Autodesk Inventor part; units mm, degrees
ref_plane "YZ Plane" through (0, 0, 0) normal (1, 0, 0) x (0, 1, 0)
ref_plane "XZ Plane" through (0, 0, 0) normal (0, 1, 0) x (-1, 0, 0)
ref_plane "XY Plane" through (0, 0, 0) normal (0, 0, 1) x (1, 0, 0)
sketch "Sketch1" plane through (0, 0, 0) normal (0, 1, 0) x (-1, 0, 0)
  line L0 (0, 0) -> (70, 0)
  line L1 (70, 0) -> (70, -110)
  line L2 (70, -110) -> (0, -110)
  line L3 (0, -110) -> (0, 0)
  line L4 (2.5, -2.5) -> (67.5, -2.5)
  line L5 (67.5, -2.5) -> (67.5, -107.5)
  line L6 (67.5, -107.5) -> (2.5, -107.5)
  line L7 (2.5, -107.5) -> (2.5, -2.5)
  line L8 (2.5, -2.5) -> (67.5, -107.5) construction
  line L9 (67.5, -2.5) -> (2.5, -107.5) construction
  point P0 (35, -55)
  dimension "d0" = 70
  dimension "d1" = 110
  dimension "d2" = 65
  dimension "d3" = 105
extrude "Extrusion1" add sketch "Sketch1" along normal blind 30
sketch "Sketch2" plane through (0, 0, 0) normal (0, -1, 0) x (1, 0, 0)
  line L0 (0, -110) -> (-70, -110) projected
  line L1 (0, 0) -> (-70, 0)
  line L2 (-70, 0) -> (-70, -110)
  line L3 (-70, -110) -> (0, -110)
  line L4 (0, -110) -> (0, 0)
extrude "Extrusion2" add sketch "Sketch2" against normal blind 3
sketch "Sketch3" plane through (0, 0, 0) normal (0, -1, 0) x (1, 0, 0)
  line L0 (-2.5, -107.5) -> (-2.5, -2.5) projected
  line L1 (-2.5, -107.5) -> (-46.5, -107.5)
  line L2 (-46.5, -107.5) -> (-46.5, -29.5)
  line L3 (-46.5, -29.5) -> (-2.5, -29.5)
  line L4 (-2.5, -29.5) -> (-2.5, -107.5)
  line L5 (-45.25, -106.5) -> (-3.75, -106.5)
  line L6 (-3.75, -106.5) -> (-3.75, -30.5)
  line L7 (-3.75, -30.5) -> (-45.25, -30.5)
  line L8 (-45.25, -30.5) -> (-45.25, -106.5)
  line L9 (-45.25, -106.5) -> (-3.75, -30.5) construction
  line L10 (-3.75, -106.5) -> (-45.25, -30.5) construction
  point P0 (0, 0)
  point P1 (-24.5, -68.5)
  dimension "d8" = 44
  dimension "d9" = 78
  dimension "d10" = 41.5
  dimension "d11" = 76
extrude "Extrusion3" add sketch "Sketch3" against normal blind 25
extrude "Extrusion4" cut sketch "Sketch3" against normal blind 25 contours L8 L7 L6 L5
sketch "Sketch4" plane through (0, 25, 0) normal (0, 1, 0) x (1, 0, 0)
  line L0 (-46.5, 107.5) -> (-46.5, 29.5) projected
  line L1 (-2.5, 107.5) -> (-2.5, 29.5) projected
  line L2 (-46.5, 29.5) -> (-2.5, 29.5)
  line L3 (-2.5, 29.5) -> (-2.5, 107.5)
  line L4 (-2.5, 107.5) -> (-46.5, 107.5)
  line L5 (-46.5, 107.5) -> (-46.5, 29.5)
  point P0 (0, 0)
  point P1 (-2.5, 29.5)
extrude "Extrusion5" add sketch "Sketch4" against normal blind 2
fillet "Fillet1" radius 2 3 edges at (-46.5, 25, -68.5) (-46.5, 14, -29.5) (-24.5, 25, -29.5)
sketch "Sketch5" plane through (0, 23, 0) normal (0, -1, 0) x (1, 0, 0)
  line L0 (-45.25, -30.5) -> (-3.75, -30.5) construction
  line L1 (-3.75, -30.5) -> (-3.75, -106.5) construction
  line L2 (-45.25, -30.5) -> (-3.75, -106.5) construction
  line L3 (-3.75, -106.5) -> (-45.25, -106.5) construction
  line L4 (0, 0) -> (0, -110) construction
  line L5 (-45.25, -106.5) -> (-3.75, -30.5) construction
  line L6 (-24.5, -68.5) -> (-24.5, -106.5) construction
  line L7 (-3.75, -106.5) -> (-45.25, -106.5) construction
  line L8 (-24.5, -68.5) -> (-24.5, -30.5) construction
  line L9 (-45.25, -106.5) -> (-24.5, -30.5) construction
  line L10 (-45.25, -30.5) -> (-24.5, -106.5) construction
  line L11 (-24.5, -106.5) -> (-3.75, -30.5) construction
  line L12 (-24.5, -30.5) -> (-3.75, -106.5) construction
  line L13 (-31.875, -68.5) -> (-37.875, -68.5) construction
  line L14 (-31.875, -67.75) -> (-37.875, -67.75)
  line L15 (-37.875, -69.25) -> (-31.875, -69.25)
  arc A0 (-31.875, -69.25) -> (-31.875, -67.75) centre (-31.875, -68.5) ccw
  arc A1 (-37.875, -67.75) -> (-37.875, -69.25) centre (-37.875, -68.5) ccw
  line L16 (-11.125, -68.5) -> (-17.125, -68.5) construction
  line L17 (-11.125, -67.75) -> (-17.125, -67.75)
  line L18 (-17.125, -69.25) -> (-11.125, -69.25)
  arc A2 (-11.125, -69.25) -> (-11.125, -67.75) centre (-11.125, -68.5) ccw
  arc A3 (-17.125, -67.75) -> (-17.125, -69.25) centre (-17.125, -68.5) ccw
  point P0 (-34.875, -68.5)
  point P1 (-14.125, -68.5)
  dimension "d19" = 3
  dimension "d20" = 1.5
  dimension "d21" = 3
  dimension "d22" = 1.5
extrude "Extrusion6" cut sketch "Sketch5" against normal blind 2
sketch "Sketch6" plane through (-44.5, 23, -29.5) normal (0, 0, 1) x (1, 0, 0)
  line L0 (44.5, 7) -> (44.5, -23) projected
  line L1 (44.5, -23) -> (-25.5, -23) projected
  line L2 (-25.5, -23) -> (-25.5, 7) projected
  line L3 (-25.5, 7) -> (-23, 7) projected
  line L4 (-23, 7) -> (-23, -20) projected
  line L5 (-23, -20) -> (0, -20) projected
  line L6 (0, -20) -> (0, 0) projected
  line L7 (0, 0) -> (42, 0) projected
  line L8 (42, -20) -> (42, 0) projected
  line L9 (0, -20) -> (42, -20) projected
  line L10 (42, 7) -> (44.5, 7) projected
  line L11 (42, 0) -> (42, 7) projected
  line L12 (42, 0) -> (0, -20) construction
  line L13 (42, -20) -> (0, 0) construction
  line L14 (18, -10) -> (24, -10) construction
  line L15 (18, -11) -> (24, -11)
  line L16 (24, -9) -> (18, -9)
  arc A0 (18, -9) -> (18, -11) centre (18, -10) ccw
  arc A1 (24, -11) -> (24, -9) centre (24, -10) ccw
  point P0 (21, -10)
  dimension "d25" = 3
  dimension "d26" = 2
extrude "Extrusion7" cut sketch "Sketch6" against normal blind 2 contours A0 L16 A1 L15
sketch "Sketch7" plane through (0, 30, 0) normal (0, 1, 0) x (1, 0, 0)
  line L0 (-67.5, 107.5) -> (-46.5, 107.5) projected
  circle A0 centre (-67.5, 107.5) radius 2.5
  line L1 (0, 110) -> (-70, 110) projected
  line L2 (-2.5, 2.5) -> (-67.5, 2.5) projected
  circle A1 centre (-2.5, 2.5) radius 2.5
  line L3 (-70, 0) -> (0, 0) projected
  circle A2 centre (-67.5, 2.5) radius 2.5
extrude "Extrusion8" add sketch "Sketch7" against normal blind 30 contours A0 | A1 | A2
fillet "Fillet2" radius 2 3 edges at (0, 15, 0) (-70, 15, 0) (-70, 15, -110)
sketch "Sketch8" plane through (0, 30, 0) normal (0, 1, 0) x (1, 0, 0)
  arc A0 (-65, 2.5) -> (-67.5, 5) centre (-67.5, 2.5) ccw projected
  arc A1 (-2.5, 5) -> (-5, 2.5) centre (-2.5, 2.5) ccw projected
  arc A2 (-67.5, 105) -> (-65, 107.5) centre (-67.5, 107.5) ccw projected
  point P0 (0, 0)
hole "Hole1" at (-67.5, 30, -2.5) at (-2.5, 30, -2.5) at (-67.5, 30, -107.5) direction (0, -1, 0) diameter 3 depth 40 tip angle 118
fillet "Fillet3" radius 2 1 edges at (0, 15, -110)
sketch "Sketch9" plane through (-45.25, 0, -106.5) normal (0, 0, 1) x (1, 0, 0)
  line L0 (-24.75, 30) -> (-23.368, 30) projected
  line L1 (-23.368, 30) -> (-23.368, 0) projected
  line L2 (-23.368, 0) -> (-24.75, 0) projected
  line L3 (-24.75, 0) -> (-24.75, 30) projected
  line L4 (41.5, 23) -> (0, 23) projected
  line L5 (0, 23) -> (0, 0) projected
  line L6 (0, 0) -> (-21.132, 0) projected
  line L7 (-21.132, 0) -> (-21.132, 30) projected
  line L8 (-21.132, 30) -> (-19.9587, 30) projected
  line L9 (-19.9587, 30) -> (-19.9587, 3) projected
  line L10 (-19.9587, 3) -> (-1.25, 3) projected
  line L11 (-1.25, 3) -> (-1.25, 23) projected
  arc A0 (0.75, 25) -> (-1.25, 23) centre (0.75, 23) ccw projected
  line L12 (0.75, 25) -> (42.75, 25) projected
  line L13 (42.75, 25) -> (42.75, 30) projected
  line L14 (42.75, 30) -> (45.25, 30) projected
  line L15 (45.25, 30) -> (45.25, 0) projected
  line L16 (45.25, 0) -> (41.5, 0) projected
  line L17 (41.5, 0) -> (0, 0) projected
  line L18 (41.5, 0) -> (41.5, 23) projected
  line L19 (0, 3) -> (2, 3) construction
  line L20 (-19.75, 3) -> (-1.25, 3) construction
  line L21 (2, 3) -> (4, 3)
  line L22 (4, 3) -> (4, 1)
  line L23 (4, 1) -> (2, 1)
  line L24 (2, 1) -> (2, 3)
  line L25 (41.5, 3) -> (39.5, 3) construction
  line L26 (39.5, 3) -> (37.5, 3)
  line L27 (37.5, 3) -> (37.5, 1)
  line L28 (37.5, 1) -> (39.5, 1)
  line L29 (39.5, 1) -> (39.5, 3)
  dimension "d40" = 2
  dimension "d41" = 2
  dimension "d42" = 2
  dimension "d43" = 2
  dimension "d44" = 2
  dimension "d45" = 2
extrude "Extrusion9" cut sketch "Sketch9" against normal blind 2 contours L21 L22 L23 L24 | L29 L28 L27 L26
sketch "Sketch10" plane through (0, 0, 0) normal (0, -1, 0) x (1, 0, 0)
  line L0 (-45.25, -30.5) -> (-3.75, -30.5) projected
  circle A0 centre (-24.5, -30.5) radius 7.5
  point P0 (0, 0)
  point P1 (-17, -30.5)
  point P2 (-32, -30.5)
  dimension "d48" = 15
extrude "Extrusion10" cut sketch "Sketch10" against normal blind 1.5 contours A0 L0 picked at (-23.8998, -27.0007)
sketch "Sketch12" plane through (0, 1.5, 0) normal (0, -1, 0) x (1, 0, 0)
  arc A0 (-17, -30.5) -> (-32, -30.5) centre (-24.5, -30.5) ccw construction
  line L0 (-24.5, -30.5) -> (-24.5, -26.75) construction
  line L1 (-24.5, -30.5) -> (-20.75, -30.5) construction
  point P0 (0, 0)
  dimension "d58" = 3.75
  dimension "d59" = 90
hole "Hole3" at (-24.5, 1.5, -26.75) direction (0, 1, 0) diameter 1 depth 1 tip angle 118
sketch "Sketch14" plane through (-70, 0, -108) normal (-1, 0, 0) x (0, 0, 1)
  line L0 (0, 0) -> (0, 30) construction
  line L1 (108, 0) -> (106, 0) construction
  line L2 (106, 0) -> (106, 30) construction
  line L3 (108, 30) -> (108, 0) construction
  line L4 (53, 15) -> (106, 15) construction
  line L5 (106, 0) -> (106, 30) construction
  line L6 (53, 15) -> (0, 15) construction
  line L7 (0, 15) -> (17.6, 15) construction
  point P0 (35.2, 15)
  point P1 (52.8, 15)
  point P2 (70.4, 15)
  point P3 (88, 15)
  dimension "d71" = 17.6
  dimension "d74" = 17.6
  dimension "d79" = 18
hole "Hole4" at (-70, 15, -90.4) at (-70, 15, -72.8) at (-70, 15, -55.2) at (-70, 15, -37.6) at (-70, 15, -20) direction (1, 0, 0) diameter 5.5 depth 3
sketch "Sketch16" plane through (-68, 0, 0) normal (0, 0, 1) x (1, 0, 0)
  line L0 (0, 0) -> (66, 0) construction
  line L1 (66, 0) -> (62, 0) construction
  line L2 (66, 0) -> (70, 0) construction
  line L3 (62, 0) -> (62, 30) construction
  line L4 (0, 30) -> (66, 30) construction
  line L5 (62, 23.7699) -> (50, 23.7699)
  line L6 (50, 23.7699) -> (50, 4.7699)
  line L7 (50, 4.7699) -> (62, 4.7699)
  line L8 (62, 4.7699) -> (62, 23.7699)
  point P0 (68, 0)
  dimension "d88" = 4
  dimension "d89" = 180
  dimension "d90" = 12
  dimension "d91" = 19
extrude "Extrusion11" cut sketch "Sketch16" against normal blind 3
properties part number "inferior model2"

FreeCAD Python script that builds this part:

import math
import FreeCAD as App
import Part
import Sketcher
from FreeCAD import Vector


def edges_at(feature, points):
    """Names of the edges that pass closest to the given points."""
    edges = feature.Shape.Edges
    near = lambda p: min(range(len(edges)), key=lambda i: edges[i].distToShape(Part.Vertex(*p))[0])
    return sorted({f"Edge{near(p) + 1}" for p in points})

doc = App.newDocument("Part")
params = doc.addObject("Spreadsheet::Sheet", "Params")
for row, (alias, value) in enumerate([
    ("sketch1_width", "70 mm"),
    ("sketch1_width2", "65 mm"),
    ("sketch1_height", "110 mm"),
    ("sketch1_height2", "105 mm"),
    ("pad1_length", "30 mm"),
    ("sketch2_width", "70 mm"),
    ("sketch2_height", "110 mm"),
    ("pad2_length", "3 mm"),
    ("sketch3_width", "44 mm"),
    ("sketch3_height", "78 mm"),
    ("sketch3_height2", "76 mm"),
    ("sketch3_width2", "41.5 mm"),
    ("pad3_length", "25 mm"),
    ("sketch4_height", "76 mm"),
    ("sketch4_width", "41.5 mm"),
    ("pocket1_length", "25 mm"),
    ("sketch5_width", "44 mm"),
    ("sketch5_height", "78 mm"),
    ("pad4_length", "2 mm"),
    ("fillet_radius", "2 mm"),
    ("sketch6_radius", "0.75 mm"),
    ("sketch6_width", "6 mm"),
    ("pocket2_length", "2 mm"),
    ("sketch7_radius", "1 mm"),
    ("sketch7_width", "6 mm"),
    ("pocket3_length", "2 mm"),
    ("sketch8_diameter", "5 mm"),
    ("pad5_length", "30 mm"),
    ("fillet2_radius", "2 mm"),
    ("sketch9_diameter", "3 mm"),
    ("hole_diameter", "3 mm"),
    ("hole_depth", "40 mm"),
    ("fillet3_radius", "2 mm"),
    ("sketch10_width", "2 mm"),
    ("pocket4_length", "2 mm"),
    ("sketch11_radius", "7.5 mm"),
    ("pocket5_length", "1.5 mm"),
    ("sketch12_diameter", "1 mm"),
    ("hole2_diameter", "1 mm"),
    ("hole2_depth", "1 mm"),
    ("sketch13_diameter", "5.5 mm"),
    ("hole3_diameter", "5.5 mm"),
    ("hole3_depth", "3 mm"),
    ("sketch14_width", "12 mm"),
    ("sketch14_height", "19 mm"),
    ("pocket6_length", "3 mm"),
], start=1):
    params.set(f"A{row}", alias)
    params.set(f"B{row}", "=" + value)
    params.setAlias(f"B{row}", alias)

body = doc.addObject("PartDesign::Body", "Body")

# Sketch on XZ plane
sketch1 = doc.addObject("Sketcher::SketchObject", "Sketch")
body.addObject(sketch1)
sketch1.AttachmentSupport = (doc.XZ_Plane, [""])
sketch1.MapMode = "FlatFace"
sketch1.addGeometry(Part.LineSegment(Vector(-70, 0, 0), Vector(0, 0, 0)), False)
sketch1.addGeometry(Part.LineSegment(Vector(0, 0, 0), Vector(0, -110, 0)), False)
sketch1.addGeometry(Part.LineSegment(Vector(0, -110, 0), Vector(-70, -110, 0)), False)
sketch1.addGeometry(Part.LineSegment(Vector(-70, -110, 0), Vector(-70, 0, 0)), False)
sketch1.addGeometry(Part.LineSegment(Vector(-2, -108, 0), Vector(-2, -2, 0)), False)
sketch1.addGeometry(Part.LineSegment(Vector(-2, -2, 0), Vector(-68, -2, 0)), False)
sketch1.addGeometry(Part.LineSegment(Vector(-68, -2, 0), Vector(-68, -108, 0)), False)
sketch1.addGeometry(Part.LineSegment(Vector(-68, -108, 0), Vector(-2, -108, 0)), False)
sketch1.addConstraint(Sketcher.Constraint("Coincident", 0, 2, 1, 1))
sketch1.addConstraint(Sketcher.Constraint("Coincident", 1, 2, 2, 1))
sketch1.addConstraint(Sketcher.Constraint("Coincident", 2, 2, 3, 1))
sketch1.addConstraint(Sketcher.Constraint("Coincident", 3, 2, 0, 1))
sketch1.addConstraint(Sketcher.Constraint("Coincident", 4, 2, 5, 1))
sketch1.addConstraint(Sketcher.Constraint("Coincident", 5, 2, 6, 1))
sketch1.addConstraint(Sketcher.Constraint("Coincident", 6, 2, 7, 1))
sketch1.addConstraint(Sketcher.Constraint("Coincident", 7, 2, 4, 1))
sketch1.addConstraint(Sketcher.Constraint("Horizontal", 0))
sketch1.addConstraint(Sketcher.Constraint("Vertical", 1))
sketch1.addConstraint(Sketcher.Constraint("Horizontal", 2))
sketch1.addConstraint(Sketcher.Constraint("Vertical", 3))
sketch1.addConstraint(Sketcher.Constraint("Vertical", 4))
sketch1.addConstraint(Sketcher.Constraint("Horizontal", 5))
sketch1.addConstraint(Sketcher.Constraint("Vertical", 6))
sketch1.addConstraint(Sketcher.Constraint("Horizontal", 7))
sketch1.addConstraint(Sketcher.Constraint("Coincident", 0, 2, -1, 1))
sketch1.addConstraint(Sketcher.Constraint("DistanceX", 0, 1, 0, 2, 70.0))
sketch1.addConstraint(Sketcher.Constraint("DistanceX", 5, 2, 5, 1, 65.0))
sketch1.addConstraint(Sketcher.Constraint("DistanceY", 1, 2, 1, 1, 110.0))
sketch1.addConstraint(Sketcher.Constraint("DistanceY", 4, 1, 4, 2, 105.0))
sketch1.addConstraint(Sketcher.Constraint("DistanceX", 4, 2, -1, 1, 2.5))
sketch1.addConstraint(Sketcher.Constraint("DistanceY", 4, 2, -1, 1, 2.5))
sketch1.setExpression("Constraints[17]", "Params.sketch1_width")
sketch1.setExpression("Constraints[18]", "Params.sketch1_width2")
sketch1.setExpression("Constraints[19]", "Params.sketch1_height")
sketch1.setExpression("Constraints[20]", "Params.sketch1_height2")
pad1 = doc.addObject("PartDesign::Pad", "Pad")
body.addObject(pad1)
pad1.Profile = sketch1
pad1.setExpression("Length", "Params.pad1_length")
pad1.Reversed = True

# Sketch on XZ plane
sketch2 = doc.addObject("Sketcher::SketchObject", "Sketch001")
body.addObject(sketch2)
sketch2.AttachmentSupport = (doc.XZ_Plane, [""])
sketch2.MapMode = "FlatFace"
sketch2.addGeometry(Part.LineSegment(Vector(-70, -110, 0), Vector(0, -110, 0)), False)
sketch2.addGeometry(Part.LineSegment(Vector(0, -110, 0), Vector(0, 0, 0)), False)
sketch2.addGeometry(Part.LineSegment(Vector(0, 0, 0), Vector(-70, 0, 0)), False)
sketch2.addGeometry(Part.LineSegment(Vector(-70, 0, 0), Vector(-70, -110, 0)), False)
sketch2.addConstraint(Sketcher.Constraint("Coincident", 0, 2, 1, 1))
sketch2.addConstraint(Sketcher.Constraint("Coincident", 1, 2, 2, 1))
sketch2.addConstraint(Sketcher.Constraint("Coincident", 2, 2, 3, 1))
sketch2.addConstraint(Sketcher.Constraint("Coincident", 3, 2, 0, 1))
sketch2.addConstraint(Sketcher.Constraint("Horizontal", 0))
sketch2.addConstraint(Sketcher.Constraint("Vertical", 1))
sketch2.addConstraint(Sketcher.Constraint("Horizontal", 2))
sketch2.addConstraint(Sketcher.Constraint("Vertical", 3))
sketch2.addConstraint(Sketcher.Constraint("Coincident", 1, 2, -1, 1))
sketch2.addConstraint(Sketcher.Constraint("DistanceX", 0, 1, 0, 2, 70.0))
sketch2.addConstraint(Sketcher.Constraint("DistanceY", 1, 1, 1, 2, 110.0))
sketch2.setExpression("Constraints[9]", "Params.sketch2_width")
sketch2.setExpression("Constraints[10]", "Params.sketch2_height")
pad2 = doc.addObject("PartDesign::Pad", "Pad001")
body.addObject(pad2)
pad2.Profile = sketch2
pad2.setExpression("Length", "Params.pad2_length")
pad2.Reversed = True

# Sketch on XZ plane
sketch3 = doc.addObject("Sketcher::SketchObject", "Sketch002")
body.addObject(sketch3)
sketch3.AttachmentSupport = (doc.XZ_Plane, [""])
sketch3.MapMode = "FlatFace"
sketch3.addGeometry(Part.LineSegment(Vector(-46, -108, 0), Vector(-2, -108, 0)), False)
sketch3.addGeometry(Part.LineSegment(Vector(-2, -108, 0), Vector(-2, -30, 0)), False)
sketch3.addGeometry(Part.LineSegment(Vector(-2, -30, 0), Vector(-46, -30, 0)), False)
sketch3.addGeometry(Part.LineSegment(Vector(-46, -30, 0), Vector(-46, -108, 0)), False)
sketch3.addGeometry(Part.LineSegment(Vector(-4, -106, 0), Vector(-45, -106, 0)), False)
sketch3.addGeometry(Part.LineSegment(Vector(-45, -106, 0), Vector(-45, -30, 0)), False)
sketch3.addGeometry(Part.LineSegment(Vector(-45, -30, 0), Vector(-4, -30, 0)), False)
sketch3.addGeometry(Part.LineSegment(Vector(-4, -30, 0), Vector(-4, -106, 0)), False)
sketch3.addConstraint(Sketcher.Constraint("Coincident", 0, 2, 1, 1))
sketch3.addConstraint(Sketcher.Constraint("Coincident", 1, 2, 2, 1))
sketch3.addConstraint(Sketcher.Constraint("Coincident", 2, 2, 3, 1))
sketch3.addConstraint(Sketcher.Constraint("Coincident", 3, 2, 0, 1))
sketch3.addConstraint(Sketcher.Constraint("Coincident", 4, 2, 5, 1))
sketch3.addConstraint(Sketcher.Constraint("Coincident", 5, 2, 6, 1))
sketch3.addConstraint(Sketcher.Constraint("Coincident", 6, 2, 7, 1))
sketch3.addConstraint(Sketcher.Constraint("Coincident", 7, 2, 4, 1))
sketch3.addConstraint(Sketcher.Constraint("Horizontal", 0))
sketch3.addConstraint(Sketcher.Constraint("Vertical", 1))
sketch3.addConstraint(Sketcher.Constraint("Horizontal", 2))
sketch3.addConstraint(Sketcher.Constraint("Vertical", 3))
sketch3.addConstraint(Sketcher.Constraint("Horizontal", 4))
sketch3.addConstraint(Sketcher.Constraint("Vertical", 5))
sketch3.addConstraint(Sketcher.Constraint("Horizontal", 6))
sketch3.addConstraint(Sketcher.Constraint("Vertical", 7))
sketch3.addConstraint(Sketcher.Constraint("DistanceX", 0, 1, 0, 2, 44.0))
sketch3.addConstraint(Sketcher.Constraint("DistanceY", 1, 1, 1, 2, 78.0))
sketch3.addConstraint(Sketcher.Constraint("DistanceY", 5, 1, 5, 2, 76.0))
sketch3.addConstraint(Sketcher.Constraint("DistanceX", 4, 2, 4, 1, 41.5))
sketch3.addConstraint(Sketcher.Constraint("DistanceY", 3, 2, 4, 2, 1.0))
sketch3.addConstraint(Sketcher.Constraint("DistanceX", 0, 2, -1, 1, 2.5))
sketch3.addConstraint(Sketcher.Constraint("DistanceY", 0, 2, -1, 1, 107.5))
sketch3.addConstraint(Sketcher.Constraint("DistanceX", 4, 2, -1, 1, 45.25))
sketch3.setExpression("Constraints[16]", "Params.sketch3_width")
sketch3.setExpression("Constraints[17]", "Params.sketch3_height")
sketch3.setExpression("Constraints[18]", "Params.sketch3_height2")
sketch3.setExpression("Constraints[19]", "Params.sketch3_width2")
pad3 = doc.addObject("PartDesign::Pad", "Pad002")
body.addObject(pad3)
pad3.Profile = sketch3
pad3.setExpression("Length", "Params.pad3_length")
pad3.Reversed = True

# Sketch on XZ plane
sketch4 = doc.addObject("Sketcher::SketchObject", "Sketch003")
body.addObject(sketch4)
sketch4.AttachmentSupport = (doc.XZ_Plane, [""])
sketch4.MapMode = "FlatFace"
sketch4.addGeometry(Part.LineSegment(Vector(-45, -30, 0), Vector(-45, -106, 0)), False)
sketch4.addGeometry(Part.LineSegment(Vector(-45, -106, 0), Vector(-4, -106, 0)), False)
sketch4.addGeometry(Part.LineSegment(Vector(-4, -106, 0), Vector(-4, -30, 0)), False)
sketch4.addGeometry(Part.LineSegment(Vector(-4, -30, 0), Vector(-45, -30, 0)), False)
sketch4.addConstraint(Sketcher.Constraint("Coincident", 0, 2, 1, 1))
sketch4.addConstraint(Sketcher.Constraint("Coincident", 1, 2, 2, 1))
sketch4.addConstraint(Sketcher.Constraint("Coincident", 2, 2, 3, 1))
sketch4.addConstraint(Sketcher.Constraint("Coincident", 3, 2, 0, 1))
sketch4.addConstraint(Sketcher.Constraint("Vertical", 0))
sketch4.addConstraint(Sketcher.Constraint("Horizontal", 1))
sketch4.addConstraint(Sketcher.Constraint("Vertical", 2))
sketch4.addConstraint(Sketcher.Constraint("Horizontal", 3))
sketch4.addConstraint(Sketcher.Constraint("DistanceY", 0, 2, 0, 1, 76.0))
sketch4.addConstraint(Sketcher.Constraint("DistanceX", 1, 1, 1, 2, 41.5))
sketch4.addConstraint(Sketcher.Constraint("DistanceY", 0, 2, -1, 1, 106.5))
sketch4.addConstraint(Sketcher.Constraint("DistanceX", 0, 2, -1, 1, 45.25))
sketch4.setExpression("Constraints[8]", "Params.sketch4_height")
sketch4.setExpression("Constraints[9]", "Params.sketch4_width")
pocket1 = doc.addObject("PartDesign::Pocket", "Pocket")
body.addObject(pocket1)
pocket1.Profile = sketch4
pocket1.setExpression("Length", "Params.pocket1_length")

# Sketch on XZ plane
sketch5 = doc.addObject("Sketcher::SketchObject", "Sketch004")
body.addObject(sketch5)
sketch5.AttachmentSupport = (doc.XZ_Plane, [""])
sketch5.MapMode = "FlatFace"
sketch5.AttachmentOffset = App.Placement(Vector(0, 0, -25), App.Rotation())
sketch5.addGeometry(Part.LineSegment(Vector(-2, -108, 0), Vector(-46, -108, 0)), False)
sketch5.addGeometry(Part.LineSegment(Vector(-46, -108, 0), Vector(-46, -30, 0)), False)
sketch5.addGeometry(Part.LineSegment(Vector(-46, -30, 0), Vector(-2, -30, 0)), False)
sketch5.addGeometry(Part.LineSegment(Vector(-2, -30, 0), Vector(-2, -108, 0)), False)
sketch5.addConstraint(Sketcher.Constraint("Coincident", 0, 2, 1, 1))
sketch5.addConstraint(Sketcher.Constraint("Coincident", 1, 2, 2, 1))
sketch5.addConstraint(Sketcher.Constraint("Coincident", 2, 2, 3, 1))
sketch5.addConstraint(Sketcher.Constraint("Coincident", 3, 2, 0, 1))
sketch5.addConstraint(Sketcher.Constraint("Horizontal", 0))
sketch5.addConstraint(Sketcher.Constraint("Vertical", 1))
sketch5.addConstraint(Sketcher.Constraint("Horizontal", 2))
sketch5.addConstraint(Sketcher.Constraint("Vertical", 3))
sketch5.addConstraint(Sketcher.Constraint("DistanceX", 0, 2, 0, 1, 44.0))
sketch5.addConstraint(Sketcher.Constraint("DistanceY", 1, 1, 1, 2, 78.0))
sketch5.addConstraint(Sketcher.Constraint("DistanceX", 0, 2, -1, 1, 46.5))
sketch5.addConstraint(Sketcher.Constraint("DistanceY", 0, 2, -1, 1, 107.5))
sketch5.setExpression("Constraints[8]", "Params.sketch5_width")
sketch5.setExpression("Constraints[9]", "Params.sketch5_height")
pad4 = doc.addObject("PartDesign::Pad", "Pad003")
body.addObject(pad4)
pad4.Profile = sketch5
pad4.setExpression("Length", "Params.pad4_length")
doc.recompute()

fillet = doc.addObject("PartDesign::Fillet", "Fillet")
body.addObject(fillet)
fillet.Base = (pad4, edges_at(pad4, [(-46.5, 25, -68.5), (-46.5, 14, -29.5), (-24.5, 25, -29.5)]))
fillet.setExpression("Radius", "Params.fillet_radius")

# Sketch on XZ plane
sketch6 = doc.addObject("Sketcher::SketchObject", "Sketch005")
body.addObject(sketch6)
sketch6.AttachmentSupport = (doc.XZ_Plane, [""])
sketch6.MapMode = "FlatFace"
sketch6.AttachmentOffset = App.Placement(Vector(0, 0, -23), App.Rotation())
sketch6.addGeometry(Part.ArcOfCircle(Part.Circle(Vector(-31.9, -68.5, 0), Vector(0, 0, 1), 0.8), math.radians(-90), math.radians(90)), False)
sketch6.addGeometry(Part.LineSegment(Vector(-31.9, -67.8, 0), Vector(-37.9, -67.8, 0)), False)
sketch6.addGeometry(Part.ArcOfCircle(Part.Circle(Vector(-37.9, -68.5, 0), Vector(0, 0, 1), 0.8), math.radians(90), math.radians(270)), False)
sketch6.addGeometry(Part.LineSegment(Vector(-37.9, -69.2, 0), Vector(-31.9, -69.2, 0)), False)
sketch6.addGeometry(Part.ArcOfCircle(Part.Circle(Vector(-11.1, -68.5, 0), Vector(0, 0, 1), 0.8), math.radians(-90), math.radians(90)), False)
sketch6.addGeometry(Part.LineSegment(Vector(-11.1, -67.8, 0), Vector(-17.1, -67.8, 0)), False)
sketch6.addGeometry(Part.ArcOfCircle(Part.Circle(Vector(-17.1, -68.5, 0), Vector(0, 0, 1), 0.8), math.radians(90), math.radians(270)), False)
sketch6.addGeometry(Part.LineSegment(Vector(-17.1, -69.2, 0), Vector(-11.1, -69.2, 0)), False)
sketch6.addConstraint(Sketcher.Constraint("Tangent", 0, 2, 1, 1))
sketch6.addConstraint(Sketcher.Constraint("Tangent", 1, 2, 2, 1))
sketch6.addConstraint(Sketcher.Constraint("Tangent", 2, 2, 3, 1))
sketch6.addConstraint(Sketcher.Constraint("Tangent", 3, 2, 0, 1))
sketch6.addConstraint(Sketcher.Constraint("Tangent", 4, 2, 5, 1))
sketch6.addConstraint(Sketcher.Constraint("Tangent", 5, 2, 6, 1))
sketch6.addConstraint(Sketcher.Constraint("Tangent", 6, 2, 7, 1))
sketch6.addConstraint(Sketcher.Constraint("Tangent", 7, 2, 4, 1))
sketch6.addConstraint(Sketcher.Constraint("Horizontal", 1))
sketch6.addConstraint(Sketcher.Constraint("Horizontal", 3))
sketch6.addConstraint(Sketcher.Constraint("Horizontal", 5))
sketch6.addConstraint(Sketcher.Constraint("Horizontal", 7))
sketch6.addConstraint(Sketcher.Constraint("Equal", 2, 4))
sketch6.addConstraint(Sketcher.Constraint("Horizontal", 2, 3, 4, 3))
sketch6.addConstraint(Sketcher.Constraint("Equal", 3, 5))
sketch6.addConstraint(Sketcher.Constraint("Radius", 0, 0.75))
sketch6.addConstraint(Sketcher.Constraint("DistanceX", 1, 2, 1, 1, 6.0))
sketch6.addConstraint(Sketcher.Constraint("DistanceY", 0, 3, -1, 1, 68.5))
sketch6.addConstraint(Sketcher.Constraint("DistanceX", 0, 3, 4, 3, 20.75))
sketch6.addConstraint(Sketcher.Constraint("DistanceX", 0, 3, -1, 1, 31.875))
sketch6.setExpression("Constraints[15]", "Params.sketch6_radius")
sketch6.setExpression("Constraints[16]", "Params.sketch6_width")
pocket2 = doc.addObject("PartDesign::Pocket", "Pocket001")
body.addObject(pocket2)
pocket2.Profile = sketch6
pocket2.setExpression("Length", "Params.pocket2_length")

# Sketch on XY plane
sketch7 = doc.addObject("Sketcher::SketchObject", "Sketch006")
body.addObject(sketch7)
sketch7.AttachmentSupport = (doc.XY_Plane, [""])
sketch7.MapMode = "FlatFace"
sketch7.AttachmentOffset = App.Placement(Vector(0, 0, -29.5), App.Rotation())
sketch7.addGeometry(Part.ArcOfCircle(Part.Circle(Vector(-26.5, 13, 0), Vector(0, 0, 1), 1), math.radians(90), math.radians(270)), False)
sketch7.addGeometry(Part.LineSegment(Vector(-26.5, 12, 0), Vector(-20.5, 12, 0)), False)
sketch7.addGeometry(Part.ArcOfCircle(Part.Circle(Vector(-20.5, 13, 0), Vector(0, 0, 1), 1), math.radians(-90), math.radians(90)), False)
sketch7.addGeometry(Part.LineSegment(Vector(-20.5, 14, 0), Vector(-26.5, 14, 0)), False)
sketch7.addConstraint(Sketcher.Constraint("Tangent", 0, 2, 1, 1))
sketch7.addConstraint(Sketcher.Constraint("Tangent", 1, 2, 2, 1))
sketch7.addConstraint(Sketcher.Constraint("Tangent", 2, 2, 3, 1))
sketch7.addConstraint(Sketcher.Constraint("Tangent", 3, 2, 0, 1))
sketch7.addConstraint(Sketcher.Constraint("Horizontal", 1))
sketch7.addConstraint(Sketcher.Constraint("Horizontal", 3))
sketch7.addConstraint(Sketcher.Constraint("Radius", 0, 1.0))
sketch7.addConstraint(Sketcher.Constraint("DistanceX", 1, 1, 1, 2, 6.0))
sketch7.addConstraint(Sketcher.Constraint("DistanceY", -1, 1, 0, 3, 13.0))
sketch7.addConstraint(Sketcher.Constraint("DistanceX", 0, 3, -1, 1, 26.5))
sketch7.setExpression("Constraints[6]", "Params.sketch7_radius")
sketch7.setExpression("Constraints[7]", "Params.sketch7_width")
pocket3 = doc.addObject("PartDesign::Pocket", "Pocket002")
body.addObject(pocket3)
pocket3.Profile = sketch7
pocket3.setExpression("Length", "Params.pocket3_length")

# Sketch on XZ plane
sketch8 = doc.addObject("Sketcher::SketchObject", "Sketch007")
body.addObject(sketch8)
sketch8.AttachmentSupport = (doc.XZ_Plane, [""])
sketch8.MapMode = "FlatFace"
sketch8.AttachmentOffset = App.Placement(Vector(0, 0, -30), App.Rotation())
sketch8.addGeometry(Part.Circle(Vector(-67.5, -107.5, 0), Vector(0, 0, 1), 2.5), False)
sketch8.addGeometry(Part.Circle(Vector(-2.5, -2.5, 0), Vector(0, 0, 1), 2.5), False)
sketch8.addGeometry(Part.Circle(Vector(-67.5, -2.5, 0), Vector(0, 0, 1), 2.5), False)
sketch8.addConstraint(Sketcher.Constraint("Equal", 0, 1))
sketch8.addConstraint(Sketcher.Constraint("Equal", 1, 2))
sketch8.addConstraint(Sketcher.Constraint("Horizontal", 1, 3, 2, 3))
sketch8.addConstraint(Sketcher.Constraint("Vertical", 0, 3, 2, 3))
sketch8.addConstraint(Sketcher.Constraint("Diameter", 0, 5.0))
sketch8.addConstraint(Sketcher.Constraint("DistanceX", 0, 3, 1, 3, 65.0))
sketch8.addConstraint(Sketcher.Constraint("DistanceY", 0, 3, 1, 3, 105.0))
sketch8.addConstraint(Sketcher.Constraint("DistanceX", 0, 3, -1, 1, 67.5))
sketch8.addConstraint(Sketcher.Constraint("DistanceY", 0, 3, -1, 1, 107.5))
sketch8.setExpression("Constraints[4]", "Params.sketch8_diameter")
pad5 = doc.addObject("PartDesign::Pad", "Pad004")
body.addObject(pad5)
pad5.Profile = sketch8
pad5.setExpression("Length", "Params.pad5_length")
doc.recompute()

fillet2 = doc.addObject("PartDesign::Fillet", "Fillet001")
body.addObject(fillet2)
fillet2.Base = (pad5, edges_at(pad5, [(0, 15, 0), (-70, 15, 0), (-70, 15, -110)]))
fillet2.setExpression("Radius", "Params.fillet2_radius")

# Sketch on XZ plane
sketch9 = doc.addObject("Sketcher::SketchObject", "Sketch008")
body.addObject(sketch9)
sketch9.AttachmentSupport = (doc.XZ_Plane, [""])
sketch9.MapMode = "FlatFace"
sketch9.AttachmentOffset = App.Placement(Vector(0, 0, -30), App.Rotation())
sketch9.addGeometry(Part.Circle(Vector(-67.5, -2.5, 0), Vector(0, 0, 1), 1.5), False)
sketch9.addGeometry(Part.Circle(Vector(-2.5, -2.5, 0), Vector(0, 0, 1), 1.5), False)
sketch9.addGeometry(Part.Circle(Vector(-67.5, -107.5, 0), Vector(0, 0, 1), 1.5), False)
sketch9.addConstraint(Sketcher.Constraint("Equal", 0, 1))
sketch9.addConstraint(Sketcher.Constraint("Equal", 1, 2))
sketch9.addConstraint(Sketcher.Constraint("Horizontal", 0, 3, 1, 3))
sketch9.addConstraint(Sketcher.Constraint("Vertical", 0, 3, 2, 3))
sketch9.addConstraint(Sketcher.Constraint("Diameter", 0, 3.0))
sketch9.addConstraint(Sketcher.Constraint("DistanceX", 0, 3, 1, 3, 65.0))
sketch9.addConstraint(Sketcher.Constraint("DistanceY", 2, 3, 0, 3, 105.0))
sketch9.addConstraint(Sketcher.Constraint("DistanceX", 0, 3, -1, 1, 67.5))
sketch9.addConstraint(Sketcher.Constraint("DistanceY", 0, 3, -1, 1, 2.5))
sketch9.setExpression("Constraints[4]", "Params.sketch9_diameter")
doc.recompute()
hole = doc.addObject("PartDesign::Hole", "Hole")
body.addObject(hole)
hole.Profile = sketch9
hole.ThreadType = "None"
hole.setExpression("Diameter", "Params.hole_diameter")
hole.DepthType = "Dimension"
hole.setExpression("Depth", "Params.hole_depth")
hole.DrillPoint = "Angled"
hole.DrillPointAngle = 118
hole.Reversed = True
doc.recompute()

fillet3 = doc.addObject("PartDesign::Fillet", "Fillet002")
body.addObject(fillet3)
fillet3.Base = (hole, edges_at(hole, [(0, 15, -110)]))
fillet3.setExpression("Radius", "Params.fillet3_radius")

# Sketch on XY plane
sketch10 = doc.addObject("Sketcher::SketchObject", "Sketch009")
body.addObject(sketch10)
sketch10.AttachmentSupport = (doc.XY_Plane, [""])
sketch10.MapMode = "FlatFace"
sketch10.AttachmentOffset = App.Placement(Vector(0, 0, -106.5), App.Rotation())
sketch10.addGeometry(Part.LineSegment(Vector(-41.2, 3, 0), Vector(-43.2, 3, 0)), False)
sketch10.addGeometry(Part.LineSegment(Vector(-43.2, 3, 0), Vector(-43.2, 1, 0)), False)
sketch10.addGeometry(Part.LineSegment(Vector(-43.2, 1, 0), Vector(-41.2, 1, 0)), False)
sketch10.addGeometry(Part.LineSegment(Vector(-41.2, 1, 0), Vector(-41.2, 3, 0)), False)
sketch10.addGeometry(Part.LineSegment(Vector(-5.8, 1, 0), Vector(-5.8, 3, 0)), False)
sketch10.addGeometry(Part.LineSegment(Vector(-5.8, 3, 0), Vector(-7.8, 3, 0)), False)
sketch10.addGeometry(Part.LineSegment(Vector(-7.8, 3, 0), Vector(-7.8, 1, 0)), False)
sketch10.addGeometry(Part.LineSegment(Vector(-7.8, 1, 0), Vector(-5.8, 1, 0)), False)
sketch10.addConstraint(Sketcher.Constraint("Coincident", 0, 2, 1, 1))
sketch10.addConstraint(Sketcher.Constraint("Coincident", 1, 2, 2, 1))
sketch10.addConstraint(Sketcher.Constraint("Coincident", 2, 2, 3, 1))
sketch10.addConstraint(Sketcher.Constraint("Coincident", 3, 2, 0, 1))
sketch10.addConstraint(Sketcher.Constraint("Coincident", 4, 2, 5, 1))
sketch10.addConstraint(Sketcher.Constraint("Coincident", 5, 2, 6, 1))
sketch10.addConstraint(Sketcher.Constraint("Coincident", 6, 2, 7, 1))
sketch10.addConstraint(Sketcher.Constraint("Coincident", 7, 2, 4, 1))
sketch10.addConstraint(Sketcher.Constraint("Horizontal", 0))
sketch10.addConstraint(Sketcher.Constraint("Vertical", 1))
sketch10.addConstraint(Sketcher.Constraint("Horizontal", 2))
sketch10.addConstraint(Sketcher.Constraint("Vertical", 3))
sketch10.addConstraint(Sketcher.Constraint("Vertical", 4))
sketch10.addConstraint(Sketcher.Constraint("Horizontal", 5))
sketch10.addConstraint(Sketcher.Constraint("Vertical", 6))
sketch10.addConstraint(Sketcher.Constraint("Horizontal", 7))
sketch10.addConstraint(Sketcher.Constraint("Horizontal", 3, 2, 4, 2))
sketch10.addConstraint(Sketcher.Constraint("Horizontal", 2, 2, 6, 2))
sketch10.addConstraint(Sketcher.Constraint("Equal", 2, 5))
sketch10.addConstraint(Sketcher.Constraint("Equal", 7, 1))
sketch10.addConstraint(Sketcher.Constraint("DistanceX", 0, 2, 0, 1, 2.0))
sketch10.addConstraint(Sketcher.Constraint("DistanceY", -1, 1, 0, 2, 3.0))
sketch10.addConstraint(Sketcher.Constraint("DistanceX", 3, 2, 4, 2, 35.5))
sketch10.addConstraint(Sketcher.Constraint("DistanceX", 0, 2, -1, 1, 43.25))
sketch10.setExpression("Constraints[20]", "Params.sketch10_width")
pocket4 = doc.addObject("PartDesign::Pocket", "Pocket003")
body.addObject(pocket4)
pocket4.Profile = sketch10
pocket4.setExpression("Length", "Params.pocket4_length")

# Sketch on XZ plane
sketch11 = doc.addObject("Sketcher::SketchObject", "Sketch010")
body.addObject(sketch11)
sketch11.AttachmentSupport = (doc.XZ_Plane, [""])
sketch11.MapMode = "FlatFace"
sketch11.addGeometry(Part.ArcOfCircle(Part.Circle(Vector(-24, -30, 0), Vector(0, 0, 1), 8), math.radians(0), math.radians(180)), False)
sketch11.addGeometry(Part.LineSegment(Vector(-32, -30, 0), Vector(-17, -30, 0)), False)
sketch11.addConstraint(Sketcher.Constraint("Coincident", 0, 1, 1, 2))
sketch11.addConstraint(Sketcher.Constraint("Coincident", 1, 1, 0, 2))
sketch11.addConstraint(Sketcher.Constraint("Horizontal", 1))
sketch11.addConstraint(Sketcher.Constraint("Radius", 0, 7.5))
sketch11.addConstraint(Sketcher.Constraint("DistanceX", 0, 1, -1, 1, 17.0))
sketch11.addConstraint(Sketcher.Constraint("DistanceY", 0, 3, -1, 1, 30.5))
sketch11.addConstraint(Sketcher.Constraint("DistanceY", 0, 1, -1, 1, 30.5))
sketch11.setExpression("Constraints[3]", "Params.sketch11_radius")
pocket5 = doc.addObject("PartDesign::Pocket", "Pocket004")
body.addObject(pocket5)
pocket5.Profile = sketch11
pocket5.setExpression("Length", "Params.pocket5_length")

# Sketch on XZ plane
sketch12 = doc.addObject("Sketcher::SketchObject", "Sketch011")
body.addObject(sketch12)
sketch12.AttachmentSupport = (doc.XZ_Plane, [""])
sketch12.MapMode = "FlatFace"
sketch12.AttachmentOffset = App.Placement(Vector(0, 0, -1.5), App.Rotation())
sketch12.addGeometry(Part.Circle(Vector(-24.5, -26.8, 0), Vector(0, 0, 1), 0.5), False)
sketch12.addConstraint(Sketcher.Constraint("Diameter", 0, 1.0))
sketch12.addConstraint(Sketcher.Constraint("DistanceX", 0, 3, -1, 1, 24.5))
sketch12.addConstraint(Sketcher.Constraint("DistanceY", 0, 3, -1, 1, 26.75))
sketch12.setExpression("Constraints[0]", "Params.sketch12_diameter")
doc.recompute()
hole2 = doc.addObject("PartDesign::Hole", "Hole001")
body.addObject(hole2)
hole2.Profile = sketch12
hole2.ThreadType = "None"
hole2.setExpression("Diameter", "Params.hole2_diameter")
hole2.DepthType = "Dimension"
hole2.setExpression("Depth", "Params.hole2_depth")
hole2.DrillPoint = "Angled"
hole2.DrillPointAngle = 118

# Sketch on YZ plane
sketch13 = doc.addObject("Sketcher::SketchObject", "Sketch012")
body.addObject(sketch13)
sketch13.AttachmentSupport = (doc.YZ_Plane, [""])
sketch13.MapMode = "FlatFace"
sketch13.AttachmentOffset = App.Placement(Vector(0, 0, -70), App.Rotation())
sketch13.addGeometry(Part.Circle(Vector(15, -90.4, 0), Vector(0, 0, 1), 2.8), False)
sketch13.addGeometry(Part.Circle(Vector(15, -72.8, 0), Vector(0, 0, 1), 2.8), False)
sketch13.addGeometry(Part.Circle(Vector(15, -55.2, 0), Vector(0, 0, 1), 2.8), False)
sketch13.addGeometry(Part.Circle(Vector(15, -37.6, 0), Vector(0, 0, 1), 2.8), False)
sketch13.addGeometry(Part.Circle(Vector(15, -20, 0), Vector(0, 0, 1), 2.8), False)
sketch13.addConstraint(Sketcher.Constraint("Equal", 0, 1))
sketch13.addConstraint(Sketcher.Constraint("Equal", 1, 2))
sketch13.addConstraint(Sketcher.Constraint("Equal", 2, 3))
sketch13.addConstraint(Sketcher.Constraint("Equal", 3, 4))
sketch13.addConstraint(Sketcher.Constraint("Vertical", 0, 3, 1, 3))
sketch13.addConstraint(Sketcher.Constraint("Vertical", 1, 3, 2, 3))
sketch13.addConstraint(Sketcher.Constraint("Vertical", 2, 3, 3, 3))
sketch13.addConstraint(Sketcher.Constraint("Vertical", 3, 3, 4, 3))
sketch13.addConstraint(Sketcher.Constraint("Diameter", 0, 5.5))
sketch13.addConstraint(Sketcher.Constraint("DistanceX", -1, 1, 0, 3, 15.0))
sketch13.addConstraint(Sketcher.Constraint("DistanceY", 4, 3, -1, 1, 20.0))
sketch13.addConstraint(Sketcher.Constraint("DistanceY", 0, 3, -1, 1, 90.4))
sketch13.addConstraint(Sketcher.Constraint("DistanceY", 1, 3, -1, 1, 72.8))
sketch13.addConstraint(Sketcher.Constraint("DistanceY", 2, 3, -1, 1, 55.2))
sketch13.addConstraint(Sketcher.Constraint("DistanceY", 3, 3, -1, 1, 37.6))
sketch13.setExpression("Constraints[8]", "Params.sketch13_diameter")
doc.recompute()
hole3 = doc.addObject("PartDesign::Hole", "Hole002")
body.addObject(hole3)
hole3.Profile = sketch13
hole3.ThreadType = "None"
hole3.setExpression("Diameter", "Params.hole3_diameter")
hole3.DepthType = "Dimension"
hole3.setExpression("Depth", "Params.hole3_depth")
hole3.DrillPoint = "Flat"
hole3.Reversed = True

# Sketch on XY plane
sketch14 = doc.addObject("Sketcher::SketchObject", "Sketch013")
body.addObject(sketch14)
sketch14.AttachmentSupport = (doc.XY_Plane, [""])
sketch14.MapMode = "FlatFace"
sketch14.addGeometry(Part.LineSegment(Vector(-6, 5, 0), Vector(-6, 24, 0)), False)
sketch14.addGeometry(Part.LineSegment(Vector(-6, 24, 0), Vector(-18, 24, 0)), False)
sketch14.addGeometry(Part.LineSegment(Vector(-18, 24, 0), Vector(-18, 5, 0)), False)
sketch14.addGeometry(Part.LineSegment(Vector(-18, 5, 0), Vector(-6, 5, 0)), False)
sketch14.addConstraint(Sketcher.Constraint("Coincident", 0, 2, 1, 1))
sketch14.addConstraint(Sketcher.Constraint("Coincident", 1, 2, 2, 1))
sketch14.addConstraint(Sketcher.Constraint("Coincident", 2, 2, 3, 1))
sketch14.addConstraint(Sketcher.Constraint("Coincident", 3, 2, 0, 1))
sketch14.addConstraint(Sketcher.Constraint("Vertical", 0))
sketch14.addConstraint(Sketcher.Constraint("Horizontal", 1))
sketch14.addConstraint(Sketcher.Constraint("Vertical", 2))
sketch14.addConstraint(Sketcher.Constraint("Horizontal", 3))
sketch14.addConstraint(Sketcher.Constraint("DistanceX", 1, 2, 1, 1, 12.0))
sketch14.addConstraint(Sketcher.Constraint("DistanceY", 0, 1, 0, 2, 19.0))
sketch14.addConstraint(Sketcher.Constraint("DistanceX", 0, 2, -1, 1, 6.0))
sketch14.addConstraint(Sketcher.Constraint("DistanceY", -1, 1, 0, 2, 23.77))
sketch14.setExpression("Constraints[8]", "Params.sketch14_width")
sketch14.setExpression("Constraints[9]", "Params.sketch14_height")
pocket6 = doc.addObject("PartDesign::Pocket", "Pocket005")
body.addObject(pocket6)
pocket6.Profile = sketch14
pocket6.setExpression("Length", "Params.pocket6_length")

doc.recompute()
